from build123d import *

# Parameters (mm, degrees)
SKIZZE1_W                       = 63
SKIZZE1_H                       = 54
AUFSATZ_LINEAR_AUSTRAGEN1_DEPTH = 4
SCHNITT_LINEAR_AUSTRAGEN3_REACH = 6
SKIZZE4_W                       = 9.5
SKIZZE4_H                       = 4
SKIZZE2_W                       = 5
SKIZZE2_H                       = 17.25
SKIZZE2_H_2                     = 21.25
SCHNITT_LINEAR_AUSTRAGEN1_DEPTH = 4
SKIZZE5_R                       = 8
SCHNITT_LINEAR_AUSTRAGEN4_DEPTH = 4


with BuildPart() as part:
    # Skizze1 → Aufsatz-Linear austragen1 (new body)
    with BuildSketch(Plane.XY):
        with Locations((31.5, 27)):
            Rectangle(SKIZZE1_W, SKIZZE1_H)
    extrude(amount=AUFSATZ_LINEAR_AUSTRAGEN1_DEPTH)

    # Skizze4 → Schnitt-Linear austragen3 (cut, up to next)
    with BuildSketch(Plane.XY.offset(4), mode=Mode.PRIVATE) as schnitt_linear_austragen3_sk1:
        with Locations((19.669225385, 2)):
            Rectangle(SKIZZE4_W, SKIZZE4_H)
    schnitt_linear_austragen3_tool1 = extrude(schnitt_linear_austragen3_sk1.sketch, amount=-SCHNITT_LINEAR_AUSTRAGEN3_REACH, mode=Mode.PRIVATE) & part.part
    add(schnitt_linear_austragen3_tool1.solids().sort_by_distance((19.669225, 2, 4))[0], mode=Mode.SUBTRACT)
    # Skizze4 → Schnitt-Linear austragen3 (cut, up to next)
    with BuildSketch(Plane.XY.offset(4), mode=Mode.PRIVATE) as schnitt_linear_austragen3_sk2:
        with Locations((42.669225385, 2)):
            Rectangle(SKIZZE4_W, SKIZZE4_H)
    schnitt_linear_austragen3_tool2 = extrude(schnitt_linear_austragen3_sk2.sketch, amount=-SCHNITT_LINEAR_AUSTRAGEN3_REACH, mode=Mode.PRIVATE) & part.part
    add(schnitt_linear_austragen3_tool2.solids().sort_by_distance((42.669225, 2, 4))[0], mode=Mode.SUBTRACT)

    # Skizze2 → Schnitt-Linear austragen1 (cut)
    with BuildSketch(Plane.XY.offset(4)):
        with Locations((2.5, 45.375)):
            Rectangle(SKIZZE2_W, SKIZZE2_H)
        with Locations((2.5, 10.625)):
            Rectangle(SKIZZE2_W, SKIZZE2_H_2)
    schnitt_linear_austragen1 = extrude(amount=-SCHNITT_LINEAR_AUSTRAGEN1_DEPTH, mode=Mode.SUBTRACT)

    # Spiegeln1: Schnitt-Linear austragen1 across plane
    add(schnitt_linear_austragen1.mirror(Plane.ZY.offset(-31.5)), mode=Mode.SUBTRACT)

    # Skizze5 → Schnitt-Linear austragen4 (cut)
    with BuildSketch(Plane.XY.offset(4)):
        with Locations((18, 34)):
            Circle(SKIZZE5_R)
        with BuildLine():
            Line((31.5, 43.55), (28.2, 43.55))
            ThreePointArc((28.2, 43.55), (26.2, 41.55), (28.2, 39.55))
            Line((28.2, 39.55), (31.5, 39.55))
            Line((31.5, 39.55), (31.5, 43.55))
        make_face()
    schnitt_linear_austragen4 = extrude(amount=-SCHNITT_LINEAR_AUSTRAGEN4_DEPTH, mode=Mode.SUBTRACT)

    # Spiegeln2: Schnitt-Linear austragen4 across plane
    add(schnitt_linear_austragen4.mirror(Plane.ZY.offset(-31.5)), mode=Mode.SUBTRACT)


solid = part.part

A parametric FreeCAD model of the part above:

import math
import FreeCAD as App
import Part
import Sketcher

doc = App.newDocument("Part")
body = doc.addObject("PartDesign::Body", "Body")

# Sketch on XY plane
sketch1 = body.newObject("Sketcher::SketchObject", "Sketch")
sketch1.AttachmentSupport = (doc.getObject("XY_Plane"), [""])
sketch1.MapMode = "FlatFace"
sketch1.addGeometry([
    Part.LineSegment(App.Vector(0, 54, 0), App.Vector(0, 0, 0)),
    Part.LineSegment(App.Vector(0, 0, 0), App.Vector(63, 0, 0)),
    Part.LineSegment(App.Vector(63, 0, 0), App.Vector(63, 54, 0)),
    Part.LineSegment(App.Vector(63, 54, 0), App.Vector(0, 54, 0)),
], False)
sketch1.addConstraint([
    Sketcher.Constraint("Coincident", 0, 2, 1, 1),
    Sketcher.Constraint("Coincident", 1, 2, 2, 1),
    Sketcher.Constraint("Coincident", 2, 2, 3, 1),
    Sketcher.Constraint("Coincident", 3, 2, 0, 1),
    Sketcher.Constraint("Vertical", 0),
    Sketcher.Constraint("Horizontal", 1),
    Sketcher.Constraint("Vertical", 2),
    Sketcher.Constraint("Horizontal", 3),
    Sketcher.Constraint("Coincident", 0, 2, -1, 1),
    Sketcher.Constraint("DistanceX", 1, 1, 1, 2, 63.0),
    Sketcher.Constraint("DistanceY", 0, 2, 0, 1, 54.0),
])
pad1 = body.newObject("PartDesign::Pad", "Pad")
pad1.Profile = sketch1
pad1.Length = 4

# Sketch on XY plane
sketch2 = body.newObject("Sketcher::SketchObject", "Sketch001")
sketch2.AttachmentSupport = (doc.getObject("XY_Plane"), [""])
sketch2.MapMode = "FlatFace"
sketch2.AttachmentOffset = App.Placement(App.Vector(0, 0, 4), App.Rotation())
sketch2.addGeometry([
    Part.LineSegment(App.Vector(14.919225, 4, 0), App.Vector(14.919225, 0, 0)),
    Part.LineSegment(App.Vector(14.919225, 0, 0), App.Vector(24.419225, 0, 0)),
    Part.LineSegment(App.Vector(24.419225, 0, 0), App.Vector(24.419225, 4, 0)),
    Part.LineSegment(App.Vector(24.419225, 4, 0), App.Vector(14.919225, 4, 0)),
], False)
sketch2.addConstraint([
    Sketcher.Constraint("Coincident", 0, 2, 1, 1),
    Sketcher.Constraint("Coincident", 1, 2, 2, 1),
    Sketcher.Constraint("Coincident", 2, 2, 3, 1),
    Sketcher.Constraint("Coincident", 3, 2, 0, 1),
    Sketcher.Constraint("Vertical", 0),
    Sketcher.Constraint("Horizontal", 1),
    Sketcher.Constraint("Vertical", 2),
    Sketcher.Constraint("Horizontal", 3),
    Sketcher.Constraint("PointOnObject", 0, 2, -1),
    Sketcher.Constraint("DistanceY", 0, 2, 0, 1, 4.0),
    Sketcher.Constraint("DistanceX", 1, 1, 1, 2, 9.5),
    Sketcher.Constraint("DistanceX", -1, 1, 0, 2, 14.919225),
])
pocket1 = body.newObject("PartDesign::Pocket", "Pocket")
pocket1.Profile = sketch2
pocket1.Type = "UpToFirst"

# Sketch on XY plane
sketch3 = body.newObject("Sketcher::SketchObject", "Sketch002")
sketch3.AttachmentSupport = (doc.getObject("XY_Plane"), [""])
sketch3.MapMode = "FlatFace"
sketch3.AttachmentOffset = App.Placement(App.Vector(0, 0, 4), App.Rotation())
sketch3.addGeometry([
    Part.LineSegment(App.Vector(37.919225, 4, 0), App.Vector(37.919225, 0, 0)),
    Part.LineSegment(App.Vector(37.919225, 0, 0), App.Vector(47.419225, 0, 0)),
    Part.LineSegment(App.Vector(47.419225, 0, 0), App.Vector(47.419225, 4, 0)),
    Part.LineSegment(App.Vector(47.419225, 4, 0), App.Vector(37.919225, 4, 0)),
], False)
sketch3.addConstraint([
    Sketcher.Constraint("Coincident", 0, 2, 1, 1),
    Sketcher.Constraint("Coincident", 1, 2, 2, 1),
    Sketcher.Constraint("Coincident", 2, 2, 3, 1),
    Sketcher.Constraint("Coincident", 3, 2, 0, 1),
    Sketcher.Constraint("Vertical", 0),
    Sketcher.Constraint("Horizontal", 1),
    Sketcher.Constraint("Vertical", 2),
    Sketcher.Constraint("Horizontal", 3),
    Sketcher.Constraint("PointOnObject", 0, 2, -1),
    Sketcher.Constraint("DistanceY", 0, 2, 0, 1, 4.0),
    Sketcher.Constraint("DistanceX", 1, 1, 1, 2, 9.5),
    Sketcher.Constraint("DistanceX", -1, 1, 0, 2, 37.919225),
])
pocket2 = body.newObject("PartDesign::Pocket", "Pocket001")
pocket2.Profile = sketch3
pocket2.Type = "UpToFirst"

# Sketch on XY plane
sketch4 = body.newObject("Sketcher::SketchObject", "Sketch003")
sketch4.AttachmentSupport = (doc.getObject("XY_Plane"), [""])
sketch4.MapMode = "FlatFace"
sketch4.AttachmentOffset = App.Placement(App.Vector(0, 0, 4), App.Rotation())
sketch4.addGeometry([
    Part.LineSegment(App.Vector(0, 54, 0), App.Vector(0, 36.75, 0)),  # 0
    Part.LineSegment(App.Vector(0, 36.75, 0), App.Vector(5, 36.75, 0)),  # 1
    Part.LineSegment(App.Vector(5, 36.75, 0), App.Vector(5, 54, 0)),  # 2
    Part.LineSegment(App.Vector(5, 54, 0), App.Vector(0, 54, 0)),  # 3
    Part.LineSegment(App.Vector(0, 21.25, 0), App.Vector(0, 0, 0)),  # 4
    Part.LineSegment(App.Vector(0, 0, 0), App.Vector(5, 0, 0)),  # 5
    Part.LineSegment(App.Vector(5, 0, 0), App.Vector(5, 21.25, 0)),  # 6
    Part.LineSegment(App.Vector(5, 21.25, 0), App.Vector(0, 21.25, 0)),  # 7
], False)
sketch4.addConstraint([
    Sketcher.Constraint("Coincident", 0, 2, 1, 1),
    Sketcher.Constraint("Coincident", 1, 2, 2, 1),
    Sketcher.Constraint("Coincident", 2, 2, 3, 1),
    Sketcher.Constraint("Coincident", 3, 2, 0, 1),
    Sketcher.Constraint("Coincident", 4, 2, 5, 1),
    Sketcher.Constraint("Coincident", 5, 2, 6, 1),
    Sketcher.Constraint("Coincident", 6, 2, 7, 1),
    Sketcher.Constraint("Coincident", 7, 2, 4, 1),
    Sketcher.Constraint("Vertical", 0),
    Sketcher.Constraint("Horizontal", 1),
    Sketcher.Constraint("Vertical", 2),
    Sketcher.Constraint("Horizontal", 3),
    Sketcher.Constraint("Vertical", 4),
    Sketcher.Constraint("Horizontal", 5),
    Sketcher.Constraint("Vertical", 6),
    Sketcher.Constraint("Horizontal", 7),
    Sketcher.Constraint("Coincident", 4, 2, -1, 1),
    Sketcher.Constraint("PointOnObject", 0, 2, -2),
    Sketcher.Constraint("Vertical", 2, 2, 5, 2),
    Sketcher.Constraint("DistanceX", 1, 1, 1, 2, 5.0),
    Sketcher.Constraint("DistanceY", -1, 1, 2, 2, 54.0),
    Sketcher.Constraint("DistanceY", 0, 2, 0, 1, 17.25),
    Sketcher.Constraint("DistanceY", 4, 2, 4, 1, 21.25),
])
pocket3 = body.newObject("PartDesign::Pocket", "Pocket002")
pocket3.Profile = sketch4
pocket3.Length = 4
doc.recompute()

datumplane = body.newObject("PartDesign::Plane", "DatumPlane")
datumplane.AttachmentSupport = (doc.getObject("YZ_Plane"), [""])
datumplane.MapMode = "FlatFace"
datumplane.AttachmentOffset = App.Placement(App.Vector(0, 0, 31.5), App.Rotation())
mirrored = body.newObject("PartDesign::Mirrored", "Mirrored")
mirrored.Originals = [pocket3]
mirrored.MirrorPlane = (datumplane, [""])
body.Tip = mirrored

# Sketch on XY plane
sketch5 = body.newObject("Sketcher::SketchObject", "Sketch004")
sketch5.AttachmentSupport = (doc.getObject("XY_Plane"), [""])
sketch5.MapMode = "FlatFace"
sketch5.AttachmentOffset = App.Placement(App.Vector(0, 0, 4), App.Rotation())
sketch5.addGeometry([
    Part.Circle(App.Vector(18, 34, 0), App.Vector(0, 0, 1), 8),  # 0
    Part.LineSegment(App.Vector(31.5, 43.55, 0), App.Vector(28.2, 43.55, 0)),  # 1
    Part.ArcOfCircle(Part.Circle(App.Vector(28.2, 41.55, 0), App.Vector(0, 0, 1), 2), math.radians(90), math.radians(270)),  # 2
    Part.LineSegment(App.Vector(28.2, 39.55, 0), App.Vector(31.5, 39.55, 0)),  # 3
    Part.LineSegment(App.Vector(31.5, 39.55, 0), App.Vector(31.5, 43.55, 0)),  # 4
], False)
sketch5.addConstraint([
    Sketcher.Constraint("Tangent", 1, 2, 2, 1),
    Sketcher.Constraint("Tangent", 2, 2, 3, 1),
    Sketcher.Constraint("Coincident", 3, 2, 4, 1),
    Sketcher.Constraint("Coincident", 4, 2, 1, 1),
    Sketcher.Constraint("Horizontal", 1),
    Sketcher.Constraint("Horizontal", 3),
    Sketcher.Constraint("Vertical", 4),
    Sketcher.Constraint("Diameter", 0, 16.0),
    Sketcher.Constraint("Radius", 2, 2.0),
    Sketcher.Constraint("DistanceX", 1, 2, 1, 1, 3.3),
    Sketcher.Constraint("DistanceX", -1, 1, 0, 3, 18.0),
    Sketcher.Constraint("DistanceY", -1, 1, 0, 3, 34.0),
    Sketcher.Constraint("DistanceX", -1, 1, 2, 3, 28.2),
    Sketcher.Constraint("DistanceY", -1, 1, 2, 3, 41.55),
])
pocket4 = body.newObject("PartDesign::Pocket", "Pocket003")
pocket4.Profile = sketch5
pocket4.Length = 4
doc.recompute()

datumplane2 = body.newObject("PartDesign::Plane", "DatumPlane001")
datumplane2.AttachmentSupport = (doc.getObject("YZ_Plane"), [""])
datumplane2.MapMode = "FlatFace"
datumplane2.AttachmentOffset = App.Placement(App.Vector(0, 0, 31.5), App.Rotation())
mirrored2 = body.newObject("PartDesign::Mirrored", "Mirrored001")
mirrored2.Originals = [pocket4]
mirrored2.MirrorPlane = (datumplane2, [""])
body.Tip = mirrored2

doc.recompute()
